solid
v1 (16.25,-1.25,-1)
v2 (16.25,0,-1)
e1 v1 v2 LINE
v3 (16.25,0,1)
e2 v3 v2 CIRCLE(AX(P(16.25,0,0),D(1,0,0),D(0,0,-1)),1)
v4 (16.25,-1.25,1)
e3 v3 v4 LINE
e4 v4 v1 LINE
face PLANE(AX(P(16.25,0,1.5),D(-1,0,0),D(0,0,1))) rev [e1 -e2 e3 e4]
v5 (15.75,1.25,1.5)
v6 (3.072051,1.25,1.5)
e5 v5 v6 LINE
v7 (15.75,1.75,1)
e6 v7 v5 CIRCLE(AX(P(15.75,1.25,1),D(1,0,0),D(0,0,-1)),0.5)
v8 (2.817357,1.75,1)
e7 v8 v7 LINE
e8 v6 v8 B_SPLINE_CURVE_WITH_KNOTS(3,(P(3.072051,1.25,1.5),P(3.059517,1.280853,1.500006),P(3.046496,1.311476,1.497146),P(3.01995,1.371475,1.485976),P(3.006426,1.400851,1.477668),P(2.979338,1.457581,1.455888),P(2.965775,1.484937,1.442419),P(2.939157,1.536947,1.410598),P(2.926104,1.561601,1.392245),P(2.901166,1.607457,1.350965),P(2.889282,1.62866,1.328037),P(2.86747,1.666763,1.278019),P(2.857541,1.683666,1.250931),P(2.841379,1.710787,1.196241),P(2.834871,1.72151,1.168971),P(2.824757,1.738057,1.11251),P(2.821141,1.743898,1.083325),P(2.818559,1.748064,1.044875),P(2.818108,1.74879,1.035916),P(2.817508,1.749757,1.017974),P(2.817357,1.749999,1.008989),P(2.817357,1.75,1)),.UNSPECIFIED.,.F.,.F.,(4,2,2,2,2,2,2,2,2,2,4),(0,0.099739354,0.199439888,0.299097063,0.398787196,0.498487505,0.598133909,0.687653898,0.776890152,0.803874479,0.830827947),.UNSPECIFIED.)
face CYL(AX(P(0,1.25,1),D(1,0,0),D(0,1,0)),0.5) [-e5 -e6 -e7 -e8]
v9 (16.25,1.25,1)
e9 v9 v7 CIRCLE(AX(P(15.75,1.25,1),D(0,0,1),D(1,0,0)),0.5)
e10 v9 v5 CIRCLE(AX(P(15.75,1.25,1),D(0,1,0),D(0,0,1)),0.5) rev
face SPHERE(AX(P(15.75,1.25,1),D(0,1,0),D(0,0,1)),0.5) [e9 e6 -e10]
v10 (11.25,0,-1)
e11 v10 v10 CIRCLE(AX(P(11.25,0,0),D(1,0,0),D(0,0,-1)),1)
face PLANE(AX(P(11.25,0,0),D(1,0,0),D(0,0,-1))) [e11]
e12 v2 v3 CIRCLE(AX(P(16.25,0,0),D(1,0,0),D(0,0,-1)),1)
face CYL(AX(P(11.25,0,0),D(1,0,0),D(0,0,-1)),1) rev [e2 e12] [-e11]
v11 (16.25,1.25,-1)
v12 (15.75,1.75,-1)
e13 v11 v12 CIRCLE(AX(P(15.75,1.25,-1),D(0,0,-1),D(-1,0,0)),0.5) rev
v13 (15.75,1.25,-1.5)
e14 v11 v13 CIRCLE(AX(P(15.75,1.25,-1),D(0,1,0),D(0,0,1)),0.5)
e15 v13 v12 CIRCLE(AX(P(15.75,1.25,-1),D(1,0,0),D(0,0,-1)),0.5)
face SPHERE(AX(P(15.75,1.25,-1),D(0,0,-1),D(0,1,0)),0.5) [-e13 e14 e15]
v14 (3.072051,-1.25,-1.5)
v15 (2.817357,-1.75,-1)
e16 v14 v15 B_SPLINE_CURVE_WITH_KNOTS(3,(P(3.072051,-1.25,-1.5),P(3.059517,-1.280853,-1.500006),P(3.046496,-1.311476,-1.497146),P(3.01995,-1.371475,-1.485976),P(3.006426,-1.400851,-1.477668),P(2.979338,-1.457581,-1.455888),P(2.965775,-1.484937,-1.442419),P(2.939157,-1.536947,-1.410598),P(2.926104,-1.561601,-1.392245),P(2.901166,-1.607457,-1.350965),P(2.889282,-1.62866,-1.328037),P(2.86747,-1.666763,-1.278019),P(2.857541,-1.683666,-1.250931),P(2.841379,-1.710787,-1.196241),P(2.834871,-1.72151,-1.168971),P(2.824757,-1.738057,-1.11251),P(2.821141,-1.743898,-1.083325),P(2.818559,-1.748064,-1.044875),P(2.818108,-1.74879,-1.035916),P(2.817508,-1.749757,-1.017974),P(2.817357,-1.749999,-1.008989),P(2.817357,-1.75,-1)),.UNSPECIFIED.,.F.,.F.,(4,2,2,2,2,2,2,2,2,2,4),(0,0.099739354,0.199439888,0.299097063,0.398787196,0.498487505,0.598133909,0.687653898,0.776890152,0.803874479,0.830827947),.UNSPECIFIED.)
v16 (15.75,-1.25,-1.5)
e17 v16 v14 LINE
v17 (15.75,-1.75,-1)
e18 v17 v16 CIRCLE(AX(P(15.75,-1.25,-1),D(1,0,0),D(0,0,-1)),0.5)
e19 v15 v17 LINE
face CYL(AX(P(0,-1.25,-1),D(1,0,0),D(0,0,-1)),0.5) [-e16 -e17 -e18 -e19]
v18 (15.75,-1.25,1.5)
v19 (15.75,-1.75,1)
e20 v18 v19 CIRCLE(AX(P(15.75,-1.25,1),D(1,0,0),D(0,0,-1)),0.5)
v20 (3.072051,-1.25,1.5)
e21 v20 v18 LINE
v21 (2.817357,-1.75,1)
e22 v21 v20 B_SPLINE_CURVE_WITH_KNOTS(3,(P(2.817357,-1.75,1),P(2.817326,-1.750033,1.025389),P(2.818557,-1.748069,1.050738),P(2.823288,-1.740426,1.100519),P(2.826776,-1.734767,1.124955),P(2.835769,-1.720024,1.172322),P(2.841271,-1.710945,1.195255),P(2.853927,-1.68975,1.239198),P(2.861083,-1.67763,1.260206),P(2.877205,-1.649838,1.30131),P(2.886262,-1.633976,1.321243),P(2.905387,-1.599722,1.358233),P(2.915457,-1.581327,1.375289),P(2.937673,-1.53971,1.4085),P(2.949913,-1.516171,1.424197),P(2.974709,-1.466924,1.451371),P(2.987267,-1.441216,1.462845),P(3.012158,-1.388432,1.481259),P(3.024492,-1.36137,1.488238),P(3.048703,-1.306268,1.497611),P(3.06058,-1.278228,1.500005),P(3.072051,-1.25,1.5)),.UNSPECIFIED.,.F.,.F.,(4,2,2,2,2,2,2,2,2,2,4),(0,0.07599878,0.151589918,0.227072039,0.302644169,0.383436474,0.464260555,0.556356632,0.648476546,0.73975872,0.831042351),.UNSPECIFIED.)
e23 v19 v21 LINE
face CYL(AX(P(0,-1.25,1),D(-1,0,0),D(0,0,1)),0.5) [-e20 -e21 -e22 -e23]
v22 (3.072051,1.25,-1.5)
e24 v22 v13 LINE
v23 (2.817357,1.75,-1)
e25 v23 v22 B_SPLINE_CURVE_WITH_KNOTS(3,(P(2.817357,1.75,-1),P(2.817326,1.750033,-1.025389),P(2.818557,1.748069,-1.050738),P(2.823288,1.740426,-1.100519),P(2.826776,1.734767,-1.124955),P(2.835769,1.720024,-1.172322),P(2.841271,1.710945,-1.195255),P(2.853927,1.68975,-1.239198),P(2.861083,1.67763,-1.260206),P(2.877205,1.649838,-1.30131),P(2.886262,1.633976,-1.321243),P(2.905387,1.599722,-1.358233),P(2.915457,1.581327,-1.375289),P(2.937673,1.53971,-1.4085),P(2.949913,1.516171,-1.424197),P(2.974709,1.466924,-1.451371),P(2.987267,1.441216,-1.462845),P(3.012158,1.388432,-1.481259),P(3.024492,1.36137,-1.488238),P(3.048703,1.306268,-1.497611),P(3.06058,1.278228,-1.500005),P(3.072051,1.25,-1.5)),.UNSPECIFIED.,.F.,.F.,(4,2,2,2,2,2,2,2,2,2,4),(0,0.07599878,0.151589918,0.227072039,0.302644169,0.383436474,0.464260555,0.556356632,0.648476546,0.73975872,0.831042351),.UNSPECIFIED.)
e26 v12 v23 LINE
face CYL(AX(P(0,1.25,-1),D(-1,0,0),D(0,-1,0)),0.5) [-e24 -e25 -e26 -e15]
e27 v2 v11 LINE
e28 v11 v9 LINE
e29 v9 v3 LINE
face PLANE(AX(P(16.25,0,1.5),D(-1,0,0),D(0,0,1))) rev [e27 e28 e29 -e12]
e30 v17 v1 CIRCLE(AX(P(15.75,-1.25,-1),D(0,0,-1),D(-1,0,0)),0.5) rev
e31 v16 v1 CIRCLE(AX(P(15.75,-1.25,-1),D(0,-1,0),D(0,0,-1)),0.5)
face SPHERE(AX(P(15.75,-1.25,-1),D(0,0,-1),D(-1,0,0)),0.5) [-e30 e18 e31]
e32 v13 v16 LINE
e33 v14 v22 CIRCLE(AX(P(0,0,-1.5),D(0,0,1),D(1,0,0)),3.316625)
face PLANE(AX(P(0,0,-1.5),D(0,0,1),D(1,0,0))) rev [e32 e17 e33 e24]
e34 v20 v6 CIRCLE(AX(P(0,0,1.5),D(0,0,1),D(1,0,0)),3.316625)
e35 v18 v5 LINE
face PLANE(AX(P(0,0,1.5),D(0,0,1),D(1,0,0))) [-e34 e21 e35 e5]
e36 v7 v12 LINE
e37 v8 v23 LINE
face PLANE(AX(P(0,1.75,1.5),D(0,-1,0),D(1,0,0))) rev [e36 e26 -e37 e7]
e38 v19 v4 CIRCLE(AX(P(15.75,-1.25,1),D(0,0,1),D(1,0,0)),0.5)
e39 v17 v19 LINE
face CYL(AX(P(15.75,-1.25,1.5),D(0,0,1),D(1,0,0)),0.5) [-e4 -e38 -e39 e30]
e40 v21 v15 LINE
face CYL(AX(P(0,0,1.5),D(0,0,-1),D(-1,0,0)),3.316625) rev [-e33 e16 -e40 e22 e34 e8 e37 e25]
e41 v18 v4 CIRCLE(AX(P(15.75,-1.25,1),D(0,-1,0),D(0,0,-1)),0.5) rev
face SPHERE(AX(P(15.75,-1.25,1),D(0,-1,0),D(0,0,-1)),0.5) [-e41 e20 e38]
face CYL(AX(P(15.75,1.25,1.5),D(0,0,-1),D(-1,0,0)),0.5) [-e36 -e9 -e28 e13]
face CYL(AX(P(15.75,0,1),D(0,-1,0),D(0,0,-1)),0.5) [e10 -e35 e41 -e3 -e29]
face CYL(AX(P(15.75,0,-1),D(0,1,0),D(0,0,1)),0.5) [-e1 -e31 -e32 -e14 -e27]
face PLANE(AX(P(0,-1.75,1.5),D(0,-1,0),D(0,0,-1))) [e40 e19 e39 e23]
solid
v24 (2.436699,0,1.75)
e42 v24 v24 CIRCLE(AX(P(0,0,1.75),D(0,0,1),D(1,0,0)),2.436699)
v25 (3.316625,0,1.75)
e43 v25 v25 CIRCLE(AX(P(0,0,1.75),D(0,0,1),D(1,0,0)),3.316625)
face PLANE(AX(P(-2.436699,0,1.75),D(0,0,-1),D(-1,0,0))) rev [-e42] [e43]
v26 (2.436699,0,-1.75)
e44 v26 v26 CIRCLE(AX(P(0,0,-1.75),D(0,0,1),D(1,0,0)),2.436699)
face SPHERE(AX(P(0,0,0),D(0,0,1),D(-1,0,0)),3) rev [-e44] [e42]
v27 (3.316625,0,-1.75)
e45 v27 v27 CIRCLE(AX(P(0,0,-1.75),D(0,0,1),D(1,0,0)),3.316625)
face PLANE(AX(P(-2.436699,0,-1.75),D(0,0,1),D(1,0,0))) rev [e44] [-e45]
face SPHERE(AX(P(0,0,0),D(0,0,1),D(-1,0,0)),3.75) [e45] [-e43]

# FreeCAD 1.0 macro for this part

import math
import FreeCAD as App
import Part
import Sketcher

V = App.Vector


def edges_at(feature, points):
    """Names of the edges that pass closest to the given points."""
    edges = feature.Shape.Edges
    near = lambda p: min(range(len(edges)), key=lambda i: edges[i].distToShape(Part.Vertex(*p))[0])
    return sorted({f"Edge{near(p) + 1}" for p in points})

doc = App.newDocument("Part")
body = doc.addObject("PartDesign::Body", "Body")

sketch1 = body.newObject("Sketcher::SketchObject", "Sketch")
sketch1.AttachmentSupport = (doc.getObject("XZ_Plane"), [""])
sketch1.MapMode = "FlatFace"
sketch1.addGeometry(Part.LineSegment(V(-2.4, -1.8, 0), V(-3.3, -1.8, 0)), False)
sketch1.addGeometry(Part.ArcOfCircle(Part.Circle(V(0, 0, 0), V(0, 0, 1), 3.7), math.radians(152), math.radians(208)), False)
sketch1.addGeometry(Part.LineSegment(V(-3.3, 1.8, 0), V(-2.4, 1.8, 0)), False)
sketch1.addGeometry(Part.ArcOfCircle(Part.Circle(V(0, 0, 0), V(0, 0, 1), 3), math.radians(144), math.radians(216)), False)
sketch1.addConstraint(Sketcher.Constraint("Coincident", 0, 2, 1, 2))
sketch1.addConstraint(Sketcher.Constraint("Coincident", 1, 1, 2, 1))
sketch1.addConstraint(Sketcher.Constraint("Coincident", 2, 2, 3, 1))
sketch1.addConstraint(Sketcher.Constraint("Coincident", 3, 2, 0, 1))
sketch1.addConstraint(Sketcher.Constraint("Horizontal", 0))
sketch1.addConstraint(Sketcher.Constraint("Horizontal", 2))
sketch1.addConstraint(Sketcher.Constraint("Coincident", 1, 3, -1, 1))
sketch1.addConstraint(Sketcher.Constraint("Coincident", 3, 3, -1, 1))
sketch1.addConstraint(Sketcher.Constraint("Vertical", 0, 2, 1, 1))
sketch1.addConstraint(Sketcher.Constraint("Radius", 3, 3.0))
sketch1.addConstraint(Sketcher.Constraint("Radius", 1, 3.75))
sketch1.addConstraint(Sketcher.Constraint("DistanceY", 0, 2, 1, 1, 3.5))
revolution = body.newObject("PartDesign::Revolution", "Revolution")
revolution.Profile = sketch1
revolution.ReferenceAxis = (sketch1, ["V_Axis"])
revolution.Angle = 360
body2 = doc.addObject("PartDesign::Body", "Body001")

sketch2 = body2.newObject("Sketcher::SketchObject", "Sketch001")
sketch2.AttachmentSupport = (doc.getObject("XY_Plane001"), [""])
sketch2.MapMode = "FlatFace"
sketch2.addGeometry(Part.LineSegment(V(16.2, -1.8, 0), V(16.2, 1.8, 0)), False)
sketch2.addGeometry(Part.LineSegment(V(16.2, 1.8, 0), V(2.8, 1.8, 0)), False)
sketch2.addGeometry(Part.ArcOfCircle(Part.Circle(V(0, 0, 0), V(0, 0, 1), 3.3), math.radians(0), math.radians(32)), False)
sketch2.addGeometry(Part.ArcOfCircle(Part.Circle(V(0, 0, 0), V(0, 0, 1), 3.3), math.radians(-32), math.radians(0)), False)
sketch2.addGeometry(Part.LineSegment(V(2.8, -1.8, 0), V(16.2, -1.8, 0)), False)
sketch2.addConstraint(Sketcher.Constraint("Coincident", 0, 2, 1, 1))
sketch2.addConstraint(Sketcher.Constraint("Coincident", 1, 2, 2, 2))
sketch2.addConstraint(Sketcher.Constraint("Tangent", 2, 1, 3, 2))
sketch2.addConstraint(Sketcher.Constraint("Coincident", 3, 1, 4, 1))
sketch2.addConstraint(Sketcher.Constraint("Coincident", 4, 2, 0, 1))
sketch2.addConstraint(Sketcher.Constraint("Vertical", 0))
sketch2.addConstraint(Sketcher.Constraint("Horizontal", 1))
sketch2.addConstraint(Sketcher.Constraint("Horizontal", 4))
sketch2.addConstraint(Sketcher.Constraint("Coincident", 2, 3, -1, 1))
sketch2.addConstraint(Sketcher.Constraint("Equal", 2, 3))
sketch2.addConstraint(Sketcher.Constraint("PointOnObject", 2, 1, -1))
sketch2.addConstraint(Sketcher.Constraint("Vertical", 1, 2, 3, 1))
sketch2.addConstraint(Sketcher.Constraint("DistanceY", 0, 1, 0, 2, 3.5))
sketch2.addConstraint(Sketcher.Constraint("DistanceX", -1, 1, 0, 2, 16.25))
sketch2.addConstraint(Sketcher.Constraint("Radius", 2, 3.316625))
pad1 = body2.newObject("PartDesign::Pad", "Pad")
pad1.Profile = sketch2
pad1.Length = 3
pad1.Midplane = True
doc.recompute()

fillet = body2.newObject("PartDesign::Fillet", "Fillet")
fillet.Base = (pad1, edges_at(pad1, [
    (9.534, -1.75, 1.5),
    (16.25, 0, 1.5),
    (9.534, 1.75, 1.5),
    (9.534, 1.75, -1.5),
    (16.25, 0, -1.5),
    (9.534, -1.75, -1.5),
    (16.25, 1.75, 0),
    (16.25, -1.75, 0),
]))
fillet.Radius = 0.5

sketch3 = body2.newObject("Sketcher::SketchObject", "Sketch002")
sketch3.AttachmentSupport = (doc.getObject("YZ_Plane001"), [""])
sketch3.MapMode = "FlatFace"
sketch3.AttachmentOffset = App.Placement(V(0, 0, 16.25), App.Rotation())
sketch3.addGeometry(Part.Circle(V(0, 0, 0), V(0, 0, 1), 1), False)
sketch3.addConstraint(Sketcher.Constraint("Coincident", 0, 3, -1, 1))
sketch3.addConstraint(Sketcher.Constraint("Diameter", 0, 2.0))
pocket1 = body2.newObject("PartDesign::Pocket", "Pocket")
pocket1.Profile = sketch3
pocket1.Length = 5

doc.recompute()
